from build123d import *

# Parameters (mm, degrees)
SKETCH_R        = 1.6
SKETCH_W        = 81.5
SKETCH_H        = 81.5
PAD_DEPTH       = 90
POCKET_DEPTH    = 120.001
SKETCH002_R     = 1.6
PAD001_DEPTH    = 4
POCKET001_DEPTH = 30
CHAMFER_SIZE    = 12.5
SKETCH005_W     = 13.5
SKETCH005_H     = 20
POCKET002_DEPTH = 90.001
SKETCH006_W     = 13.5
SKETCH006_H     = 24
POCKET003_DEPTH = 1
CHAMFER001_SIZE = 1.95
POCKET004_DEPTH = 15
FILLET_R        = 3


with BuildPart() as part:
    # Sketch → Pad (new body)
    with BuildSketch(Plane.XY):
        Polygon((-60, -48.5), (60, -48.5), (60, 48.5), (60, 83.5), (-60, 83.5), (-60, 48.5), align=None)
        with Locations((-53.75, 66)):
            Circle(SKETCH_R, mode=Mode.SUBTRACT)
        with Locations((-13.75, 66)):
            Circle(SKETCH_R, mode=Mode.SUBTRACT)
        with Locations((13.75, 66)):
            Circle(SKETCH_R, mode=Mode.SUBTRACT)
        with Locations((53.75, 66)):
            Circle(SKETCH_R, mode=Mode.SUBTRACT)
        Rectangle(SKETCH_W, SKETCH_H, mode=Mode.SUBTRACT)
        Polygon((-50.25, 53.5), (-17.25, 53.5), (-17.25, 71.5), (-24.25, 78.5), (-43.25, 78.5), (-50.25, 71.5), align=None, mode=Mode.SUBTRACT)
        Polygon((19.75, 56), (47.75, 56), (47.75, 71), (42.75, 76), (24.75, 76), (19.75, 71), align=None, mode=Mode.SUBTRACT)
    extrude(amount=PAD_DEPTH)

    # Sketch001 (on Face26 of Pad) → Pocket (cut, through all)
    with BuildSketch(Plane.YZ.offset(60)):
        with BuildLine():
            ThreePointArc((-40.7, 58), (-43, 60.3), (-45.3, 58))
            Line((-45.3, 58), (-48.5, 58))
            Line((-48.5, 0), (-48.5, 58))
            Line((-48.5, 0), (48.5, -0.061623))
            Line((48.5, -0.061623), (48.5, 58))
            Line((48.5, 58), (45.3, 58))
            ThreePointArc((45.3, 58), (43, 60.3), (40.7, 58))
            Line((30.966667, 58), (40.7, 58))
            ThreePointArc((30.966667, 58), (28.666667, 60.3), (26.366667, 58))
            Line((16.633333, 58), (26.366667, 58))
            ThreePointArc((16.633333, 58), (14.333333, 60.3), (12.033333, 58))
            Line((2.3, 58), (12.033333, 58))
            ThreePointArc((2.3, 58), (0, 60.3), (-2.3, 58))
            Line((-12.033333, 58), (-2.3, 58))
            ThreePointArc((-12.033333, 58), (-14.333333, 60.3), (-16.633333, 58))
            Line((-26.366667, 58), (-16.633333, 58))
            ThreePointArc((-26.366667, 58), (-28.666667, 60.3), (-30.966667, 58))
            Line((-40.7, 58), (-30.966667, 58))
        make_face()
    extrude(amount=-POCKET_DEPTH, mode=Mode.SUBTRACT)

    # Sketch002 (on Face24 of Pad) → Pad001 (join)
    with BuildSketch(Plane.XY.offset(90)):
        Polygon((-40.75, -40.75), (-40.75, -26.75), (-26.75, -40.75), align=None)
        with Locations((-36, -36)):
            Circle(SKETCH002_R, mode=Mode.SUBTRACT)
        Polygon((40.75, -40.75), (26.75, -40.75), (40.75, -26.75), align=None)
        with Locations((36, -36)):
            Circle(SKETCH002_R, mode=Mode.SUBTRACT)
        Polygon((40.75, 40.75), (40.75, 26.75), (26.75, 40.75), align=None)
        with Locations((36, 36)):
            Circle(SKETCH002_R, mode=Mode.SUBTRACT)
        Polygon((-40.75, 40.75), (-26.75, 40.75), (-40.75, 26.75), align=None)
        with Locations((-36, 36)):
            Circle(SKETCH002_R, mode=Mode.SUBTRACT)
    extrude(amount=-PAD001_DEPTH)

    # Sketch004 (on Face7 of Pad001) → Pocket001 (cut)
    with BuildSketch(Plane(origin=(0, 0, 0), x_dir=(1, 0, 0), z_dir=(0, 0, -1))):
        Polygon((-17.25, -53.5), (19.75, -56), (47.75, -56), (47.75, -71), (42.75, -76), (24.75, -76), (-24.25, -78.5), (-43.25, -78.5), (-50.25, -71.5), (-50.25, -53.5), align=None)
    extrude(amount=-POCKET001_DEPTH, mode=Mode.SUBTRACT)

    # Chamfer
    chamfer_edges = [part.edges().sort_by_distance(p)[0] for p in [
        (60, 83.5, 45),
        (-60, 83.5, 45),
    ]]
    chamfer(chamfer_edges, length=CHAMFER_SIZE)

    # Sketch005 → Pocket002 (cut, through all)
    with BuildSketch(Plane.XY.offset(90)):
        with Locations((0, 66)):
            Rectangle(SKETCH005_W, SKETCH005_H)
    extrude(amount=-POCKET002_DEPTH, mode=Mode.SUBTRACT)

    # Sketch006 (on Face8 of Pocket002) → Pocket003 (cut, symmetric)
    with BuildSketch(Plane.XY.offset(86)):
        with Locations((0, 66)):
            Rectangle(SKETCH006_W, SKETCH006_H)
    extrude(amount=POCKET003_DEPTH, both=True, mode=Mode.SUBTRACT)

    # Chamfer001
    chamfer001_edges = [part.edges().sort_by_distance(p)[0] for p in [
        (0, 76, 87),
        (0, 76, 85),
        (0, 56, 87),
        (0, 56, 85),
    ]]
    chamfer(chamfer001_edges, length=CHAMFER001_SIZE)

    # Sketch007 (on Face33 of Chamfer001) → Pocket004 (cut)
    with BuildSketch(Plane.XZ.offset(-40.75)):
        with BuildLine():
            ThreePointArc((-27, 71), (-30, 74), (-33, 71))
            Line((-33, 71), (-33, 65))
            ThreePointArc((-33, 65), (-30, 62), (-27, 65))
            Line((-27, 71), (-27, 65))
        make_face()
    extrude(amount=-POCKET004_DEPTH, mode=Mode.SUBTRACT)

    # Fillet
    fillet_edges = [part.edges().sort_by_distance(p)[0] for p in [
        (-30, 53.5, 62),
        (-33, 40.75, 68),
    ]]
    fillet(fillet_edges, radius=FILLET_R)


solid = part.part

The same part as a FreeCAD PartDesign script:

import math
import FreeCAD as App
import Part
import Sketcher
from FreeCAD import Vector
Q = App.Units.Quantity


def edges_at(feature, points):
    """Names of the edges that pass closest to the given points."""
    edges = feature.Shape.Edges
    near = lambda p: min(range(len(edges)), key=lambda i: edges[i].distToShape(Part.Vertex(*p))[0])
    return sorted({f"Edge{near(p) + 1}" for p in points})

doc = App.newDocument("Part")
body = doc.addObject("PartDesign::Body", "Body")

# Sketch on XY plane
sketch1 = body.newObject("Sketcher::SketchObject", "Sketch")
sketch1.AttachmentSupport = (doc.getObject("XY_Plane"), [""])
sketch1.MapMode = "FlatFace"
sketch1.addGeometry([
    Part.LineSegment(Vector(-60, -48.5, 0), Vector(60, -48.5, 0)),  # 0
    Part.LineSegment(Vector(60, -48.5, 0), Vector(60, 83.5, 0)),  # 1
    Part.LineSegment(Vector(60, 83.5, 0), Vector(-60, 83.5, 0)),  # 2
    Part.LineSegment(Vector(-60, 83.5, 0), Vector(-60, -48.5, 0)),  # 3
    Part.LineSegment(Vector(40.8, -40.8, 0), Vector(-40.8, -40.8, 0)),  # 4
    Part.LineSegment(Vector(-40.8, -40.8, 0), Vector(-40.8, 40.8, 0)),  # 5
    Part.LineSegment(Vector(-40.8, 40.8, 0), Vector(40.8, 40.8, 0)),  # 6
    Part.LineSegment(Vector(40.8, 40.8, 0), Vector(40.8, -40.8, 0)),  # 7
    Part.Circle(Vector(-53.8, 66, 0), Vector(0, 0, 1), 1.6),  # 8
    Part.LineSegment(Vector(-17.2, 53.5, 0), Vector(-50.2, 53.5, 0)),  # 9
    Part.LineSegment(Vector(-50.2, 53.5, 0), Vector(-50.2, 71.5, 0)),  # 10
    Part.LineSegment(Vector(-50.2, 71.5, 0), Vector(-43.2, 78.5, 0)),  # 11
    Part.LineSegment(Vector(-43.2, 78.5, 0), Vector(-24.2, 78.5, 0)),  # 12
    Part.LineSegment(Vector(-24.2, 78.5, 0), Vector(-17.2, 71.5, 0)),  # 13
    Part.LineSegment(Vector(-17.2, 71.5, 0), Vector(-17.2, 53.5, 0)),  # 14
    Part.Circle(Vector(-13.8, 66, 0), Vector(0, 0, 1), 1.6),  # 15
    Part.Circle(Vector(13.8, 66, 0), Vector(0, 0, 1), 1.6),  # 16
    Part.LineSegment(Vector(47.8, 56, 0), Vector(19.8, 56, 0)),  # 17
    Part.LineSegment(Vector(19.8, 56, 0), Vector(19.8, 71, 0)),  # 18
    Part.LineSegment(Vector(19.8, 71, 0), Vector(24.8, 76, 0)),  # 19
    Part.LineSegment(Vector(24.8, 76, 0), Vector(42.8, 76, 0)),  # 20
    Part.LineSegment(Vector(42.8, 76, 0), Vector(47.8, 71, 0)),  # 21
    Part.LineSegment(Vector(47.8, 71, 0), Vector(47.8, 56, 0)),  # 22
    Part.Circle(Vector(53.8, 66, 0), Vector(0, 0, 1), 1.6),  # 23
], False)
sketch1.addConstraint([
    Sketcher.Constraint("Coincident", 0, 2, 1, 1),
    Sketcher.Constraint("Coincident", 1, 2, 2, 1),
    Sketcher.Constraint("Coincident", 2, 2, 3, 1),
    Sketcher.Constraint("Coincident", 3, 2, 0, 1),
    Sketcher.Constraint("Coincident", 4, 2, 5, 1),
    Sketcher.Constraint("Coincident", 5, 2, 6, 1),
    Sketcher.Constraint("Coincident", 6, 2, 7, 1),
    Sketcher.Constraint("Coincident", 7, 2, 4, 1),
    Sketcher.Constraint("Coincident", 9, 2, 10, 1),
    Sketcher.Constraint("Coincident", 10, 2, 11, 1),
    Sketcher.Constraint("Coincident", 11, 2, 12, 1),
    Sketcher.Constraint("Coincident", 12, 2, 13, 1),
    Sketcher.Constraint("Coincident", 13, 2, 14, 1),
    Sketcher.Constraint("Coincident", 14, 2, 9, 1),
    Sketcher.Constraint("Coincident", 17, 2, 18, 1),
    Sketcher.Constraint("Coincident", 18, 2, 19, 1),
    Sketcher.Constraint("Coincident", 19, 2, 20, 1),
    Sketcher.Constraint("Coincident", 20, 2, 21, 1),
    Sketcher.Constraint("Coincident", 21, 2, 22, 1),
    Sketcher.Constraint("Coincident", 22, 2, 17, 1),
    Sketcher.Constraint("Horizontal", 0),
    Sketcher.Constraint("Vertical", 1),
    Sketcher.Constraint("Horizontal", 2),
    Sketcher.Constraint("Vertical", 3),
    Sketcher.Constraint("Horizontal", 4),
    Sketcher.Constraint("Vertical", 5),
    Sketcher.Constraint("Horizontal", 6),
    Sketcher.Constraint("Vertical", 7),
    Sketcher.Constraint("Horizontal", 9),
    Sketcher.Constraint("Vertical", 10),
    Sketcher.Constraint("Horizontal", 12),
    Sketcher.Constraint("Vertical", 14),
    Sketcher.Constraint("Horizontal", 17),
    Sketcher.Constraint("Vertical", 18),
    Sketcher.Constraint("Horizontal", 20),
    Sketcher.Constraint("Vertical", 22),
    Sketcher.Constraint("Equal", 8, 15),
    Sketcher.Constraint("Equal", 15, 16),
    Sketcher.Constraint("Equal", 16, 23),
    Sketcher.Constraint("Symmetric", 4, 2, 6, 2, -1, 1),
    Sketcher.Constraint("Symmetric", 15, 3, 16, 3, -2),
    Sketcher.Constraint("Symmetric", 8, 3, 23, 3, -2),
    Sketcher.Constraint("Perpendicular", 11, 13),
    Sketcher.Constraint("Perpendicular", 13, 19),
    Sketcher.Constraint("Perpendicular", 19, 21),
    Sketcher.Constraint("Horizontal", 8, 3, 15, 3),
    Sketcher.Constraint("Horizontal", 10, 2, 13, 2),
    Sketcher.Constraint("Horizontal", 18, 2, 21, 2),
    Sketcher.Constraint("Equal", 6, 5),
    Sketcher.Constraint("Equal", 20, 10),
    Sketcher.Constraint("Equal", 11, 13),
    Sketcher.Constraint("Diameter", 8, 3.2),
    Sketcher.Constraint("DistanceX", 0, 1, 0, 2, 120.0),
    Sketcher.Constraint("DistanceX", 9, 2, 9, 1, 33.0),
    Sketcher.Constraint("DistanceX", 12, 1, 12, 2, 19.0),
    Sketcher.Constraint("DistanceX", 17, 2, 17, 1, 28.0),
    Sketcher.Constraint("DistanceX", 20, 1, 20, 2, 18.0),
    Sketcher.Constraint("DistanceY", 1, 1, 1, 2, 132.0),
    Sketcher.Constraint("DistanceY", 18, 1, 18, 2, 15.0),
    Sketcher.Constraint("DistanceX", 4, 2, 4, 1, 81.5),
    Sketcher.Constraint("DistanceY", -1, 1, 8, 3, 66.0),
    Sketcher.Constraint("DistanceX", -1, 1, 0, 2, 60.0),
    Sketcher.Constraint("DistanceY", -1, 1, 17, 2, 56.0),
    Sketcher.Constraint("DistanceX", 8, 3, 15, 3, 40.0),
    Sketcher.Constraint("DistanceX", 8, 3, 4, 2, 13.0),
    Sketcher.Constraint("DistanceY", 9, 2, 2, 2, 30.0),
    Sketcher.Constraint("DistanceX", 9, 2, 16, 3, 64.0),
    Sketcher.Constraint("DistanceX", 16, 3, 17, 2, 6.0),
    Sketcher.Constraint("DistanceY", 0, 2, -1, 1, 48.5),
])
pad1 = body.newObject("PartDesign::Pad", "Pad")
pad1.Profile = sketch1
pad1.Length = 90

# Sketch on YZ plane
sketch2 = body.newObject("Sketcher::SketchObject", "Sketch001")
sketch2.AttachmentSupport = (doc.getObject("YZ_Plane"), [""])
sketch2.MapMode = "FlatFace"
sketch2.AttachmentOffset = App.Placement(Vector(0, 0, 60), App.Rotation())
sketch2.addGeometry([
    Part.ArcOfCircle(Part.Circle(Vector(-43, 58, 0), Vector(0, 0, 1), 2.3), math.radians(0), math.radians(180)),  # 0
    Part.LineSegment(Vector(-45.3, 58, 0), Vector(-48.5, 58, 0)),  # 1
    Part.LineSegment(Vector(-48.5, 58, 0), Vector(-48.5, 0, 0)),  # 2
    Part.LineSegment(Vector(-48.5, 0, 0), Vector(48.5, -0.1, 0)),  # 3
    Part.LineSegment(Vector(48.5, -0.1, 0), Vector(48.5, 58, 0)),  # 4
    Part.LineSegment(Vector(48.5, 58, 0), Vector(45.3, 58, 0)),  # 5
    Part.ArcOfCircle(Part.Circle(Vector(43, 58, 0), Vector(0, 0, 1), 2.3), math.radians(0), math.radians(180)),  # 6
    Part.LineSegment(Vector(40.7, 58, 0), Vector(31, 58, 0)),  # 7
    Part.ArcOfCircle(Part.Circle(Vector(28.7, 58, 0), Vector(0, 0, 1), 2.3), math.radians(0), math.radians(180)),  # 8
    Part.LineSegment(Vector(26.4, 58, 0), Vector(16.6, 58, 0)),  # 9
    Part.ArcOfCircle(Part.Circle(Vector(14.3, 58, 0), Vector(0, 0, 1), 2.3), math.radians(0), math.radians(180)),  # 10
    Part.LineSegment(Vector(12, 58, 0), Vector(2.3, 58, 0)),  # 11
    Part.ArcOfCircle(Part.Circle(Vector(0, 58, 0), Vector(0, 0, 1), 2.3), math.radians(0), math.radians(180)),  # 12
    Part.LineSegment(Vector(-2.3, 58, 0), Vector(-12, 58, 0)),  # 13
    Part.ArcOfCircle(Part.Circle(Vector(-14.3, 58, 0), Vector(0, 0, 1), 2.3), math.radians(0), math.radians(180)),  # 14
    Part.LineSegment(Vector(-16.6, 58, 0), Vector(-26.4, 58, 0)),  # 15
    Part.ArcOfCircle(Part.Circle(Vector(-28.7, 58, 0), Vector(0, 0, 1), 2.3), math.radians(0), math.radians(180)),  # 16
    Part.LineSegment(Vector(-31, 58, 0), Vector(-40.7, 58, 0)),  # 17
], False)
sketch2.addConstraint([
    Sketcher.Constraint("Coincident", 0, 2, 1, 1),
    Sketcher.Constraint("Coincident", 1, 2, 2, 1),
    Sketcher.Constraint("Coincident", 2, 2, 3, 1),
    Sketcher.Constraint("Coincident", 3, 2, 4, 1),
    Sketcher.Constraint("Coincident", 4, 2, 5, 1),
    Sketcher.Constraint("Coincident", 5, 2, 6, 1),
    Sketcher.Constraint("Coincident", 6, 2, 7, 1),
    Sketcher.Constraint("Coincident", 7, 2, 8, 1),
    Sketcher.Constraint("Coincident", 8, 2, 9, 1),
    Sketcher.Constraint("Coincident", 9, 2, 10, 1),
    Sketcher.Constraint("Coincident", 10, 2, 11, 1),
    Sketcher.Constraint("Coincident", 11, 2, 12, 1),
    Sketcher.Constraint("Coincident", 12, 2, 13, 1),
    Sketcher.Constraint("Coincident", 13, 2, 14, 1),
    Sketcher.Constraint("Coincident", 14, 2, 15, 1),
    Sketcher.Constraint("Coincident", 15, 2, 16, 1),
    Sketcher.Constraint("Coincident", 16, 2, 17, 1),
    Sketcher.Constraint("Coincident", 17, 2, 0, 1),
    Sketcher.Constraint("Horizontal", 1),
    Sketcher.Constraint("Vertical", 2),
    Sketcher.Constraint("Vertical", 4),
    Sketcher.Constraint("Horizontal", 5),
    Sketcher.Constraint("Horizontal", 7),
    Sketcher.Constraint("Horizontal", 9),
    Sketcher.Constraint("Horizontal", 11),
    Sketcher.Constraint("Horizontal", 13),
    Sketcher.Constraint("Horizontal", 15),
    Sketcher.Constraint("Horizontal", 17),
    Sketcher.Constraint("Equal", 0, 6),
    Sketcher.Constraint("Equal", 6, 8),
    Sketcher.Constraint("Equal", 8, 10),
    Sketcher.Constraint("Equal", 10, 12),
    Sketcher.Constraint("Equal", 12, 14),
    Sketcher.Constraint("Equal", 14, 16),
    Sketcher.Constraint("Symmetric", 0, 3, 6, 3, -2),
    Sketcher.Constraint("Symmetric", 10, 3, 14, 3, -2),
    Sketcher.Constraint("Symmetric", 8, 3, 16, 3, -2),
    Sketcher.Constraint("Symmetric", 1, 2, 4, 2, -2),
    Sketcher.Constraint("Symmetric", 11, 2, 12, 2, -2),
    Sketcher.Constraint("PointOnObject", 2, 2, -1),
    Sketcher.Constraint("Horizontal", 6, 3, 8, 3),
    Sketcher.Constraint("Horizontal", 8, 3, 10, 3),
    Sketcher.Constraint("Horizontal", 10, 3, 12, 3),
    Sketcher.Constraint("Horizontal", 16, 3, 0, 2),
    Sketcher.Constraint("Horizontal", 5, 2, 6, 2),
    Sketcher.Constraint("Horizontal", 7, 2, 8, 2),
    Sketcher.Constraint("Horizontal", 9, 2, 10, 2),
    Sketcher.Constraint("Horizontal", 13, 2, 14, 2),
    Sketcher.Constraint("Horizontal", 15, 2, 16, 2),
    Sketcher.Constraint("Equal", 7, 9),
    Sketcher.Constraint("Equal", 9, 11),
    Sketcher.Constraint("Radius", 0, 2.3),
    Sketcher.Constraint("DistanceY", 2, 2, 2, 1, 58.0),
    Sketcher.Constraint("DistanceX", 1, 2, 1, 1, 3.2),
    Sketcher.Constraint("DistanceX", 0, 3, -1, 1, 43.0),
    Sketcher.Constraint("DistanceY", 4, 1, 4, 2, 58.061623),
])
pocket1 = body.newObject("PartDesign::Pocket", "Pocket")
pocket1.Profile = sketch2
pocket1.Type = "ThroughAll"

# Sketch on XY plane
sketch3 = body.newObject("Sketcher::SketchObject", "Sketch002")
sketch3.AttachmentSupport = (doc.getObject("XY_Plane"), [""])
sketch3.MapMode = "FlatFace"
sketch3.AttachmentOffset = App.Placement(Vector(0, 0, 90), App.Rotation())
sketch3.addGeometry([
    Part.LineSegment(Vector(-40.8, -26.8, 0), Vector(-40.8, -40.8, 0)),  # 0
    Part.LineSegment(Vector(-40.8, -40.8, 0), Vector(-26.8, -40.8, 0)),  # 1
    Part.LineSegment(Vector(-26.8, -40.8, 0), Vector(-40.8, -26.8, 0)),  # 2
    Part.Circle(Vector(-36, -36, 0), Vector(0, 0, 1), 1.6),  # 3
    Part.LineSegment(Vector(26.8, -40.8, 0), Vector(40.8, -40.8, 0)),  # 4
    Part.LineSegment(Vector(40.8, -40.8, 0), Vector(40.8, -26.8, 0)),  # 5
    Part.LineSegment(Vector(40.8, -26.8, 0), Vector(26.8, -40.8, 0)),  # 6
    Part.Circle(Vector(36, -36, 0), Vector(0, 0, 1), 1.6),  # 7
    Part.LineSegment(Vector(40.8, 26.8, 0), Vector(40.8, 40.8, 0)),  # 8
    Part.LineSegment(Vector(40.8, 40.8, 0), Vector(26.8, 40.8, 0)),  # 9
    Part.LineSegment(Vector(26.8, 40.8, 0), Vector(40.8, 26.8, 0)),  # 10
    Part.Circle(Vector(36, 36, 0), Vector(0, 0, 1), 1.6),  # 11
    Part.LineSegment(Vector(-26.8, 40.8, 0), Vector(-40.8, 40.8, 0)),  # 12
    Part.LineSegment(Vector(-40.8, 40.8, 0), Vector(-40.8, 26.8, 0)),  # 13
    Part.LineSegment(Vector(-40.8, 26.8, 0), Vector(-26.8, 40.8, 0)),  # 14
    Part.Circle(Vector(-36, 36, 0), Vector(0, 0, 1), 1.6),  # 15
], False)
sketch3.addConstraint([
    Sketcher.Constraint("Coincident", 0, 2, 1, 1),
    Sketcher.Constraint("Coincident", 1, 2, 2, 1),
    Sketcher.Constraint("Coincident", 2, 2, 0, 1),
    Sketcher.Constraint("Coincident", 4, 2, 5, 1),
    Sketcher.Constraint("Coincident", 5, 2, 6, 1),
    Sketcher.Constraint("Coincident", 6, 2, 4, 1),
    Sketcher.Constraint("Coincident", 8, 2, 9, 1),
    Sketcher.Constraint("Coincident", 9, 2, 10, 1),
    Sketcher.Constraint("Coincident", 10, 2, 8, 1),
    Sketcher.Constraint("Coincident", 12, 2, 13, 1),
    Sketcher.Constraint("Coincident", 13, 2, 14, 1),
    Sketcher.Constraint("Coincident", 14, 2, 12, 1),
    Sketcher.Constraint("Vertical", 0),
    Sketcher.Constraint("Horizontal", 1),
    Sketcher.Constraint("Horizontal", 4),
    Sketcher.Constraint("Vertical", 5),
    Sketcher.Constraint("Vertical", 8),
    Sketcher.Constraint("Horizontal", 9),
    Sketcher.Constraint("Horizontal", 12),
    Sketcher.Constraint("Vertical", 13),
    Sketcher.Constraint("Equal", 3, 7),
    Sketcher.Constraint("Equal", 7, 11),
    Sketcher.Constraint("Equal", 11, 15),
    Sketcher.Constraint("Symmetric", 3, 3, 11, 3, -1, 1),
    Sketcher.Constraint("Symmetric", 7, 3, 15, 3, -1, 1),
    Sketcher.Constraint("Symmetric", 0, 2, 8, 2, -1, 1),
    Sketcher.Constraint("Symmetric", 4, 2, 12, 2, -1, 1),
    Sketcher.Constraint("Symmetric", 3, 3, 7, 3, -2),
    Sketcher.Constraint("Symmetric", 0, 2, 4, 2, -2),
    Sketcher.Constraint("Perpendicular", 2, 6),
    Sketcher.Constraint("Perpendicular", 6, 10),
    Sketcher.Constraint("Perpendicular", 10, 14),
    Sketcher.Constraint("Horizontal", 2, 2, 5, 2),
    Sketcher.Constraint("Horizontal", 10, 2, 13, 2),
    Sketcher.Constraint("Vertical", 6, 2, 9, 2),
    Sketcher.Constraint("Vertical", 1, 2, 14, 2),
    Sketcher.Constraint("Diameter", 3, 3.2),
    Sketcher.Constraint("DistanceX", 1, 1, 1, 2, 14.0),
    Sketcher.Constraint("DistanceX", 3, 3, -1, 1, 36.0),
    Sketcher.Constraint("DistanceY", 3, 3, -1, 1, 36.0),
    Sketcher.Constraint("DistanceX", 1, 2, 4, 2, 67.5),
    Sketcher.Constraint("DistanceY", 5, 2, 8, 2, 67.5),
])
pad2 = body.newObject("PartDesign::Pad", "Pad001")
pad2.Profile = sketch3
pad2.Length = 4
pad2.Reversed = True

# Sketch on XY plane
sketch4 = body.newObject("Sketcher::SketchObject", "Sketch003")
sketch4.AttachmentSupport = (doc.getObject("XY_Plane"), [""])
sketch4.MapMode = "FlatFace"
sketch4.addGeometry([
    Part.LineSegment(Vector(20, 56, 0), Vector(-17, 54, 0)),  # 0
    Part.LineSegment(Vector(-17, 54, 0), Vector(-50, 54, 0)),  # 1
    Part.LineSegment(Vector(-50, 54, 0), Vector(-50, 72, 0)),  # 2
    Part.LineSegment(Vector(-50, 72, 0), Vector(-43, 78, 0)),  # 3
    Part.LineSegment(Vector(-43, 78, 0), Vector(-24, 78, 0)),  # 4
    Part.LineSegment(Vector(-24, 78, 0), Vector(25, 76, 0)),  # 5
    Part.LineSegment(Vector(25, 76, 0), Vector(43, 76, 0)),  # 6
    Part.LineSegment(Vector(43, 76, 0), Vector(48, 71, 0)),  # 7
    Part.LineSegment(Vector(48, 71, 0), Vector(48, 56, 0)),  # 8
    Part.LineSegment(Vector(48, 56, 0), Vector(20, 56, 0)),  # 9
], False)
sketch4.addConstraint([
    Sketcher.Constraint("Coincident", 0, 2, 1, 1),
    Sketcher.Constraint("Coincident", 1, 2, 2, 1),
    Sketcher.Constraint("Coincident", 2, 2, 3, 1),
    Sketcher.Constraint("Coincident", 3, 2, 4, 1),
    Sketcher.Constraint("Coincident", 4, 2, 5, 1),
    Sketcher.Constraint("Coincident", 5, 2, 6, 1),
    Sketcher.Constraint("Coincident", 6, 2, 7, 1),
    Sketcher.Constraint("Coincident", 7, 2, 8, 1),
    Sketcher.Constraint("Coincident", 8, 2, 9, 1),
    Sketcher.Constraint("Coincident", 9, 2, 0, 1),
    Sketcher.Constraint("Horizontal", 1),
    Sketcher.Constraint("Vertical", 2),
    Sketcher.Constraint("Horizontal", 4),
    Sketcher.Constraint("Horizontal", 6),
    Sketcher.Constraint("Vertical", 8),
    Sketcher.Constraint("Horizontal", 9),
    Sketcher.Constraint("Perpendicular", 3, 7),
    Sketcher.Constraint("Equal", 6, 2),
    Sketcher.Constraint("DistanceX", 1, 2, 1, 1, 33.0),
    Sketcher.Constraint("DistanceX", 4, 1, 4, 2, 19.0),
    Sketcher.Constraint("DistanceX", 6, 1, 6, 2, 18.0),
    Sketcher.Constraint("DistanceX", 9, 2, 9, 1, 28.0),
    Sketcher.Constraint("DistanceY", 8, 2, 8, 1, 15.0),
    Sketcher.Constraint("Angle", 3, Q("45 deg")),
    Sketcher.Constraint("DistanceY", -1, 1, 5, 2, 76.0),
    Sketcher.Constraint("DistanceY", -1, 1, 7, 2, 71.0),
    Sketcher.Constraint("DistanceX", 2, 2, 3, 2, 7.0),
    Sketcher.Constraint("DistanceX", 0, 2, 5, 2, 42.0),
    Sketcher.Constraint("DistanceY", -1, 1, 0, 2, 53.5),
    Sketcher.Constraint("DistanceX", 0, 2, -1, 1, 17.25),
])
pocket2 = body.newObject("PartDesign::Pocket", "Pocket001")
pocket2.Profile = sketch4
pocket2.Length = 30
pocket2.Reversed = True
doc.recompute()

chamfer = body.newObject("PartDesign::Chamfer", "Chamfer")
chamfer.Base = (pocket2, edges_at(pocket2, [(60, 83.5, 45), (-60, 83.5, 45)]))
chamfer.Size = 12.5

# Sketch on XY plane
sketch5 = body.newObject("Sketcher::SketchObject", "Sketch004")
sketch5.AttachmentSupport = (doc.getObject("XY_Plane"), [""])
sketch5.MapMode = "FlatFace"
sketch5.AttachmentOffset = App.Placement(Vector(0, 0, 90), App.Rotation())
sketch5.addGeometry([
    Part.LineSegment(Vector(-7, 76, 0), Vector(-7, 56, 0)),
    Part.LineSegment(Vector(-7, 56, 0), Vector(7, 56, 0)),
    Part.LineSegment(Vector(7, 56, 0), Vector(7, 76, 0)),
    Part.LineSegment(Vector(7, 76, 0), Vector(-7, 76, 0)),
], False)
sketch5.addConstraint([
    Sketcher.Constraint("Coincident", 0, 2, 1, 1),
    Sketcher.Constraint("Coincident", 1, 2, 2, 1),
    Sketcher.Constraint("Coincident", 2, 2, 3, 1),
    Sketcher.Constraint("Coincident", 3, 2, 0, 1),
    Sketcher.Constraint("Vertical", 0),
    Sketcher.Constraint("Horizontal", 1),
    Sketcher.Constraint("Vertical", 2),
    Sketcher.Constraint("Horizontal", 3),
    Sketcher.Constraint("DistanceY", 0, 2, 0, 1, 20.0),
    Sketcher.Constraint("DistanceX", 1, 1, 1, 2, 13.5),
    Sketcher.Constraint("DistanceY", -1, 1, 0, 2, 56.0),
    Sketcher.Constraint("DistanceX", 0, 2, -1, 1, 6.75),
])
pocket3 = body.newObject("PartDesign::Pocket", "Pocket002")
pocket3.Profile = sketch5
pocket3.Type = "ThroughAll"

# Sketch on XY plane
sketch6 = body.newObject("Sketcher::SketchObject", "Sketch005")
sketch6.AttachmentSupport = (doc.getObject("XY_Plane"), [""])
sketch6.MapMode = "FlatFace"
sketch6.AttachmentOffset = App.Placement(Vector(0, 0, 86), App.Rotation())
sketch6.addGeometry([
    Part.LineSegment(Vector(-7, 78, 0), Vector(-7, 54, 0)),
    Part.LineSegment(Vector(-7, 54, 0), Vector(7, 54, 0)),
    Part.LineSegment(Vector(7, 54, 0), Vector(7, 78, 0)),
    Part.LineSegment(Vector(7, 78, 0), Vector(-7, 78, 0)),
], False)
sketch6.addConstraint([
    Sketcher.Constraint("Coincident", 0, 2, 1, 1),
    Sketcher.Constraint("Coincident", 1, 2, 2, 1),
    Sketcher.Constraint("Coincident", 2, 2, 3, 1),
    Sketcher.Constraint("Coincident", 3, 2, 0, 1),
    Sketcher.Constraint("Vertical", 0),
    Sketcher.Constraint("Horizontal", 1),
    Sketcher.Constraint("Vertical", 2),
    Sketcher.Constraint("Horizontal", 3),
    Sketcher.Constraint("DistanceY", 0, 2, 0, 1, 24.0),
    Sketcher.Constraint("DistanceX", 1, 1, 1, 2, 13.5),
    Sketcher.Constraint("DistanceY", -1, 1, 0, 2, 54.0),
    Sketcher.Constraint("DistanceX", 0, 2, -1, 1, 6.75),
])
pocket4 = body.newObject("PartDesign::Pocket", "Pocket003")
pocket4.Profile = sketch6
pocket4.Length = 2
pocket4.Midplane = True
doc.recompute()

chamfer2 = body.newObject("PartDesign::Chamfer", "Chamfer001")
chamfer2.Base = (pocket4, edges_at(pocket4, [
    (0, 76, 87),
    (0, 76, 85),
    (0, 56, 87),
    (0, 56, 85),
]))
chamfer2.Size = 1.95

# Sketch on XZ plane
sketch7 = body.newObject("Sketcher::SketchObject", "Sketch006")
sketch7.AttachmentSupport = (doc.getObject("XZ_Plane"), [""])
sketch7.MapMode = "FlatFace"
sketch7.AttachmentOffset = App.Placement(Vector(0, 0, -40.75), App.Rotation())
sketch7.addGeometry([
    Part.ArcOfCircle(Part.Circle(Vector(-30, 71, 0), Vector(0, 0, 1), 3), math.radians(0), math.radians(180)),
    Part.LineSegment(Vector(-33, 71, 0), Vector(-33, 65, 0)),
    Part.ArcOfCircle(Part.Circle(Vector(-30, 65, 0), Vector(0, 0, 1), 3), math.radians(180), math.radians(360)),
    Part.LineSegment(Vector(-27, 65, 0), Vector(-27, 71, 0)),
], False)
sketch7.addConstraint([
    Sketcher.Constraint("Tangent", 0, 2, 1, 1),
    Sketcher.Constraint("Tangent", 1, 2, 2, 1),
    Sketcher.Constraint("Tangent", 2, 2, 3, 1),
    Sketcher.Constraint("Tangent", 3, 2, 0, 1),
    Sketcher.Constraint("Vertical", 1),
    Sketcher.Constraint("Vertical", 3),
    Sketcher.Constraint("Radius", 0, 3.0),
    Sketcher.Constraint("DistanceY", 1, 2, 1, 1, 6.0),
    Sketcher.Constraint("DistanceX", 0, 3, -1, 1, 30.0),
    Sketcher.Constraint("DistanceY", -1, 1, 0, 3, 71.0),
])
pocket5 = body.newObject("PartDesign::Pocket", "Pocket004")
pocket5.Profile = sketch7
pocket5.Length = 15
doc.recompute()

fillet = body.newObject("PartDesign::Fillet", "Fillet")
fillet.Base = (pocket5, edges_at(pocket5, [(-30, 53.5, 62), (-33, 40.75, 68)]))
fillet.Radius = 3

doc.recompute()
